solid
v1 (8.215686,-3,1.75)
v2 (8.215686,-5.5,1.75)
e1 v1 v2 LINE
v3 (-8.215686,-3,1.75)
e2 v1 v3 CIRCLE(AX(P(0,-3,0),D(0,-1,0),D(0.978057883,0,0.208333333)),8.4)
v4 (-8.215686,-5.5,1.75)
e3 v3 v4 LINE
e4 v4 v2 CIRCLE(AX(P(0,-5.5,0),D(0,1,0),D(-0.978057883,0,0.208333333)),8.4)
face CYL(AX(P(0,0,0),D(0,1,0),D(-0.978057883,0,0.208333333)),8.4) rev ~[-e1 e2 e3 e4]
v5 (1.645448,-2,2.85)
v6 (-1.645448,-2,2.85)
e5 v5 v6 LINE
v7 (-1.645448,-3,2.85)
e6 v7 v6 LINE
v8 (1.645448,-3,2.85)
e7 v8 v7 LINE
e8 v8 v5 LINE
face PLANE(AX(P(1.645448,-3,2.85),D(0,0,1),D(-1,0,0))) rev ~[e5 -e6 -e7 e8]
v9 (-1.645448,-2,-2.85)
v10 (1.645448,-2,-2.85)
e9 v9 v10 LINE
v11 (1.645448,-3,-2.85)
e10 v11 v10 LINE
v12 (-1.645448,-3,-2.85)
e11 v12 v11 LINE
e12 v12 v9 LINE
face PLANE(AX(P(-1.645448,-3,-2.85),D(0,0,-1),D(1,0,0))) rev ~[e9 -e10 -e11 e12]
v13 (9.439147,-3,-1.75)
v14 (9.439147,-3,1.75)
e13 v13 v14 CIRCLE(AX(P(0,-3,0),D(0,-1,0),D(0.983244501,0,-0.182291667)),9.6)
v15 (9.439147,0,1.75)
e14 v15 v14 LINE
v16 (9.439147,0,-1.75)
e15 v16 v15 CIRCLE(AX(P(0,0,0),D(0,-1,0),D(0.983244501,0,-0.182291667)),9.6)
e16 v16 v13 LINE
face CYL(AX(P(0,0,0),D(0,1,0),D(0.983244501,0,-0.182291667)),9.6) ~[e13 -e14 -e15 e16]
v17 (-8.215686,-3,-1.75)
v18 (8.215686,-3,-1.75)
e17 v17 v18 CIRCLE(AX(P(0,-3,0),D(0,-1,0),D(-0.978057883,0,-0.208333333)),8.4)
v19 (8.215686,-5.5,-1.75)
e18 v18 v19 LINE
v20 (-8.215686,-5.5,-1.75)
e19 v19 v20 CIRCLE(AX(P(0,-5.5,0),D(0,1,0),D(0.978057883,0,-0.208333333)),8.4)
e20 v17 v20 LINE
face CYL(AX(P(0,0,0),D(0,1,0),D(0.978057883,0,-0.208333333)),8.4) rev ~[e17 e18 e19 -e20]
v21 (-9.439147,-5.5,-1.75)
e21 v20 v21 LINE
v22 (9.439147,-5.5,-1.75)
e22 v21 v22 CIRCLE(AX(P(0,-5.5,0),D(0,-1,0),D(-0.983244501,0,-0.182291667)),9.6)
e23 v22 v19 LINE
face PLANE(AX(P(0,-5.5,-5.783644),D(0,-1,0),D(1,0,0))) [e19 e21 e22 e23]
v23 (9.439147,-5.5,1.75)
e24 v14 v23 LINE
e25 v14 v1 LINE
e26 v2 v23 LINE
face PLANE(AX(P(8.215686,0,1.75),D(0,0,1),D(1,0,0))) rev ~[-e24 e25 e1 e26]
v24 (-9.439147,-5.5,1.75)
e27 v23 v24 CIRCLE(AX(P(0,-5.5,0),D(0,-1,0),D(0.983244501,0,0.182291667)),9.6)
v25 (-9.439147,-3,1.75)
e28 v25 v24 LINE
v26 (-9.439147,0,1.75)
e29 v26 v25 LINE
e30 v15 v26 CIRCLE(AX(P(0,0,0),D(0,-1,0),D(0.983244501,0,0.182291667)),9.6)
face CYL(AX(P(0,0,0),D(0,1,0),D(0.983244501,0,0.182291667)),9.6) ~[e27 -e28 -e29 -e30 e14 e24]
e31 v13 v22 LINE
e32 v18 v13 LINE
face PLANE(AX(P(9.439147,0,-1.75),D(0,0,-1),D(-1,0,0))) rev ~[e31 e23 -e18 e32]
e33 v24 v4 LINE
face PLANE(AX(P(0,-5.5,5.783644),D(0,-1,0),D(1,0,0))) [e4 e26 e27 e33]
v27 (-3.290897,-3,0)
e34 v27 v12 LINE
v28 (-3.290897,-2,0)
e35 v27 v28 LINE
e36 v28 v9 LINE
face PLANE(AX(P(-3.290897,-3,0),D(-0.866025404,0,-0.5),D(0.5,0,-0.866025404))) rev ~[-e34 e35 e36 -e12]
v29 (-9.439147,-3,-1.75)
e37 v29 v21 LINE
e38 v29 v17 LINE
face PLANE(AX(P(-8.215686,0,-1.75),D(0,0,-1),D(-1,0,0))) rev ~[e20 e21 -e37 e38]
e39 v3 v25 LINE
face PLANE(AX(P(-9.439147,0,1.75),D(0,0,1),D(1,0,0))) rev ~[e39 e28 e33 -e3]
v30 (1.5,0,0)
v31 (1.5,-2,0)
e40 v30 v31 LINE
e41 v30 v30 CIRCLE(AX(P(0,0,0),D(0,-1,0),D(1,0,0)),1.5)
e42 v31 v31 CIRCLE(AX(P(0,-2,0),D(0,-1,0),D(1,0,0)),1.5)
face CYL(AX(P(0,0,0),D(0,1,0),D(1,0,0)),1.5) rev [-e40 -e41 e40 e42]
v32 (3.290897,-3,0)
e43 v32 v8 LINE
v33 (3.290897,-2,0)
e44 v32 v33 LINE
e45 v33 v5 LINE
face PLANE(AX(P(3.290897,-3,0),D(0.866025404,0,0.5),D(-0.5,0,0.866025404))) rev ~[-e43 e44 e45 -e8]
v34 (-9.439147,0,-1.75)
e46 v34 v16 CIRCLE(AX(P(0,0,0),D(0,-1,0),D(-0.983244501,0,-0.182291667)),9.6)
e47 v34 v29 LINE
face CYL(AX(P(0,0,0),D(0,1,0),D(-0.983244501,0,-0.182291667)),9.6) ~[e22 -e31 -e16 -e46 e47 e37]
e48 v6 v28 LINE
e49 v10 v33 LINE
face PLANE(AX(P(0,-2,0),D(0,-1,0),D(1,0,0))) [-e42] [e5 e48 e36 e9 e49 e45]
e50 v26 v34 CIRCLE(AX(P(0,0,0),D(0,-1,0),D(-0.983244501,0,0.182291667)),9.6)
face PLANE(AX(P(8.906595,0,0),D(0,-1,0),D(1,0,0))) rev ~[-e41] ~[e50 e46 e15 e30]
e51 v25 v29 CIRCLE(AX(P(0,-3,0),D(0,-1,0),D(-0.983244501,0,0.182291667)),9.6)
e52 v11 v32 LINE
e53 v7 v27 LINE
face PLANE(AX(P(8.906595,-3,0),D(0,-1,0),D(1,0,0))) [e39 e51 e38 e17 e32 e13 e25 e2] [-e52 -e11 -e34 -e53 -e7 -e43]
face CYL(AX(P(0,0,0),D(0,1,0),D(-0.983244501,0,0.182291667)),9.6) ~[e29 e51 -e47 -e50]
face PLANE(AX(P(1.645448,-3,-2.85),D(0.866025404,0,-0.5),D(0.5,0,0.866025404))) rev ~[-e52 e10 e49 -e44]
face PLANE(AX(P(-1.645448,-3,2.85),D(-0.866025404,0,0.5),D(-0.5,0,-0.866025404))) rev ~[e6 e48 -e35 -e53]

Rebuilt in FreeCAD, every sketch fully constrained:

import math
import FreeCAD as App
import Part
import Sketcher
Q = App.Units.Quantity


def add_polygon(sketch, points):
    """Adds a closed chain of lines whose ends are joined by coincident constraints."""
    first, n = sketch.GeometryCount, len(points)
    for a, b in zip(points, points[1:] + points[:1]):
        sketch.addGeometry(Part.LineSegment(App.Vector(*a, 0), App.Vector(*b, 0)), False)
    for i in range(n):
        sketch.addConstraint(Sketcher.Constraint("Coincident", first + i, 2, first + (i + 1) % n, 1))

doc = App.newDocument("Part")
body = doc.addObject("PartDesign::Body", "Body")

# Sketch on XZ plane
sketch1 = body.newObject("Sketcher::SketchObject", "Sketch")
sketch1.AttachmentSupport = (doc.getObject("XZ_Plane"), [""])
sketch1.MapMode = "FlatFace"
sketch1.addGeometry([
    Part.ArcOfCircle(Part.Circle(App.Vector(0, 0, 0), App.Vector(0, 0, 1), 9.6), math.radians(10.503271), math.radians(169.496729)),
    Part.LineSegment(App.Vector(-9.439147, 1.75, 0), App.Vector(-8.215686, 1.75, 0)),
    Part.ArcOfCircle(Part.Circle(App.Vector(0, 0, 0), App.Vector(0, 0, 1), 8.4), math.radians(12.024699), math.radians(167.975301)),
    Part.LineSegment(App.Vector(8.215686, 1.75, 0), App.Vector(9.439147, 1.75, 0)),
], False)
sketch1.addConstraint([
    Sketcher.Constraint("Coincident", 0, 2, 1, 1),
    Sketcher.Constraint("Coincident", 1, 2, 2, 2),
    Sketcher.Constraint("Coincident", 2, 1, 3, 1),
    Sketcher.Constraint("Coincident", 3, 2, 0, 1),
    Sketcher.Constraint("Horizontal", 1),
    Sketcher.Constraint("Horizontal", 3),
    Sketcher.Constraint("Coincident", 0, 3, -1, 1),
    Sketcher.Constraint("Coincident", 2, 3, -1, 1),
    Sketcher.Constraint("Horizontal", 1, 2, 2, 1),
    Sketcher.Constraint("Radius", 0, Q("9.6 mm")),
    Sketcher.Constraint("Radius", 2, Q("8.4 mm")),
    Sketcher.Constraint("DistanceY", -1, 1, 0, 2, Q("1.75 mm")),
])
pad1 = body.newObject("PartDesign::Pad", "Pad")
pad1.Profile = sketch1
pad1.Length = 5.5
body2 = doc.addObject("PartDesign::Body", "Body001")

# Sketch on XZ plane
sketch2 = body2.newObject("Sketcher::SketchObject", "Sketch001")
sketch2.AttachmentSupport = (doc.getObject("XZ_Plane001"), [""])
sketch2.MapMode = "FlatFace"
sketch2.addGeometry([
    Part.LineSegment(App.Vector(-8.215686, -1.75, 0), App.Vector(-9.439147, -1.75, 0)),
    Part.ArcOfCircle(Part.Circle(App.Vector(0, 0, 0), App.Vector(0, 0, 1), 9.6), math.radians(-169.496729), math.radians(-10.503271)),
    Part.LineSegment(App.Vector(9.439147, -1.75, 0), App.Vector(8.215686, -1.75, 0)),
    Part.ArcOfCircle(Part.Circle(App.Vector(0, 0, 0), App.Vector(0, 0, 1), 8.4), math.radians(-167.975301), math.radians(-12.024699)),
], False)
sketch2.addConstraint([
    Sketcher.Constraint("Coincident", 0, 2, 1, 1),
    Sketcher.Constraint("Coincident", 1, 2, 2, 1),
    Sketcher.Constraint("Coincident", 2, 2, 3, 2),
    Sketcher.Constraint("Coincident", 3, 1, 0, 1),
    Sketcher.Constraint("Horizontal", 0),
    Sketcher.Constraint("Horizontal", 2),
    Sketcher.Constraint("Coincident", 1, 3, -1, 1),
    Sketcher.Constraint("Coincident", 3, 3, -1, 1),
    Sketcher.Constraint("Horizontal", 0, 2, 1, 2),
    Sketcher.Constraint("Radius", 1, Q("9.6 mm")),
    Sketcher.Constraint("Radius", 3, Q("8.4 mm")),
    Sketcher.Constraint("DistanceY", 0, 2, -1, 1, Q("1.75 mm")),
])
pad2 = body2.newObject("PartDesign::Pad", "Pad001")
pad2.Profile = sketch2
pad2.Length = 5.5
body.AllowCompound = True
doc.recompute()

boolean = body.newObject("PartDesign::Boolean", "Boolean")
boolean.Type = "Fuse"
boolean.addObjects([body2])

# Sketch on XZ plane
sketch3 = body.newObject("Sketcher::SketchObject", "Sketch002")
sketch3.AttachmentSupport = (doc.getObject("XZ_Plane"), [""])
sketch3.MapMode = "FlatFace"
sketch3.addGeometry([
    Part.LineSegment(App.Vector(8.215686, -1.75, 0), App.Vector(9.439147, -1.75, 0)),  # 0
    Part.ArcOfCircle(Part.Circle(App.Vector(0, 0, 0), App.Vector(0, 0, 1), 9.6), math.radians(-10.503271), math.radians(10.503271)),  # 1
    Part.LineSegment(App.Vector(9.439147, 1.75, 0), App.Vector(8.215686, 1.75, 0)),  # 2
    Part.ArcOfCircle(Part.Circle(App.Vector(0, 0, 0), App.Vector(0, 0, 1), 8.4), math.radians(12.024699), math.radians(167.975301)),  # 3
    Part.LineSegment(App.Vector(-8.215686, 1.75, 0), App.Vector(-9.439147, 1.75, 0)),  # 4
    Part.ArcOfCircle(Part.Circle(App.Vector(0, 0, 0), App.Vector(0, 0, 1), 9.6), math.radians(169.496729), math.radians(190.503271)),  # 5
    Part.LineSegment(App.Vector(-9.439147, -1.75, 0), App.Vector(-8.215686, -1.75, 0)),  # 6
    Part.ArcOfCircle(Part.Circle(App.Vector(0, 0, 0), App.Vector(0, 0, 1), 8.4), math.radians(-167.975301), math.radians(-12.024699)),  # 7
    Part.Circle(App.Vector(0, 0, 0), App.Vector(0, 0, 1), 1.5),  # 8
], False)
sketch3.addConstraint([
    Sketcher.Constraint("Coincident", 0, 2, 1, 1),
    Sketcher.Constraint("Coincident", 1, 2, 2, 1),
    Sketcher.Constraint("Coincident", 2, 2, 3, 1),
    Sketcher.Constraint("Coincident", 3, 2, 4, 1),
    Sketcher.Constraint("Coincident", 4, 2, 5, 1),
    Sketcher.Constraint("Coincident", 5, 2, 6, 1),
    Sketcher.Constraint("Coincident", 6, 2, 7, 1),
    Sketcher.Constraint("Coincident", 7, 2, 0, 1),
    Sketcher.Constraint("Horizontal", 0),
    Sketcher.Constraint("Horizontal", 2),
    Sketcher.Constraint("Horizontal", 4),
    Sketcher.Constraint("Horizontal", 6),
    Sketcher.Constraint("Coincident", 1, 3, -1, 1),
    Sketcher.Constraint("Coincident", 3, 3, -1, 1),
    Sketcher.Constraint("Coincident", 5, 3, -1, 1),
    Sketcher.Constraint("Coincident", 7, 3, -1, 1),
    Sketcher.Constraint("Coincident", 8, 3, -1, 1),
    Sketcher.Constraint("Equal", 1, 5),
    Sketcher.Constraint("Equal", 3, 7),
    Sketcher.Constraint("Horizontal", 2, 2, 3, 2),
    Sketcher.Constraint("Horizontal", 0, 2, 5, 2),
    Sketcher.Constraint("Vertical", 0, 2, 1, 2),
    Sketcher.Constraint("Diameter", 8, Q("3 mm")),
    Sketcher.Constraint("Radius", 1, Q("9.6 mm")),
    Sketcher.Constraint("Radius", 3, Q("8.4 mm")),
    Sketcher.Constraint("DistanceY", 0, 2, 1, 2, Q("3.5 mm")),
])
pad3 = body.newObject("PartDesign::Pad", "Pad002")
pad3.Profile = sketch3
pad3.Length = 3

# Sketch on XZ plane
sketch4 = body.newObject("Sketcher::SketchObject", "Sketch003")
sketch4.AttachmentSupport = (doc.getObject("XZ_Plane"), [""])
sketch4.MapMode = "FlatFace"
sketch4.AttachmentOffset = App.Placement(App.Vector(0, 0, 3), App.Rotation())
add_polygon(sketch4, [(1.645448, -2.85), (3.290897, 0), (1.645448, 2.85), (-1.645448, 2.85), (-3.290897, 0), (-1.645448, -2.85)])  # lines 0-5
sketch4.addGeometry(Part.Circle(App.Vector(0, 0, 0), App.Vector(0, 0, 1), 1.5), False)  # 6
sketch4.addConstraint([
    Sketcher.Constraint("Horizontal", 2),
    Sketcher.Constraint("Horizontal", 5),
    Sketcher.Constraint("Coincident", 6, 3, -1, 1),
    Sketcher.Constraint("Symmetric", 0, 2, 3, 2, -1, 1),
    Sketcher.Constraint("Symmetric", 1, 2, 4, 2, -1, 1),
    Sketcher.Constraint("PointOnObject", 0, 2, -1),
    Sketcher.Constraint("Parallel", 0, 3),
    Sketcher.Constraint("Vertical", 2, 2, 4, 2),
    Sketcher.Constraint("Diameter", 6, Q("3 mm")),
    Sketcher.Constraint("Angle", 0, Q("60 deg")),
    Sketcher.Constraint("DistanceY", 4, 2, 2, 2, Q("5.7 mm")),
    Sketcher.Constraint("DistanceX", 2, 2, 2, 1, Q("3.290897 mm")),
])
pocket1 = body.newObject("PartDesign::Pocket", "Pocket")
pocket1.Profile = sketch4
pocket1.Length = 1

doc.recompute()
